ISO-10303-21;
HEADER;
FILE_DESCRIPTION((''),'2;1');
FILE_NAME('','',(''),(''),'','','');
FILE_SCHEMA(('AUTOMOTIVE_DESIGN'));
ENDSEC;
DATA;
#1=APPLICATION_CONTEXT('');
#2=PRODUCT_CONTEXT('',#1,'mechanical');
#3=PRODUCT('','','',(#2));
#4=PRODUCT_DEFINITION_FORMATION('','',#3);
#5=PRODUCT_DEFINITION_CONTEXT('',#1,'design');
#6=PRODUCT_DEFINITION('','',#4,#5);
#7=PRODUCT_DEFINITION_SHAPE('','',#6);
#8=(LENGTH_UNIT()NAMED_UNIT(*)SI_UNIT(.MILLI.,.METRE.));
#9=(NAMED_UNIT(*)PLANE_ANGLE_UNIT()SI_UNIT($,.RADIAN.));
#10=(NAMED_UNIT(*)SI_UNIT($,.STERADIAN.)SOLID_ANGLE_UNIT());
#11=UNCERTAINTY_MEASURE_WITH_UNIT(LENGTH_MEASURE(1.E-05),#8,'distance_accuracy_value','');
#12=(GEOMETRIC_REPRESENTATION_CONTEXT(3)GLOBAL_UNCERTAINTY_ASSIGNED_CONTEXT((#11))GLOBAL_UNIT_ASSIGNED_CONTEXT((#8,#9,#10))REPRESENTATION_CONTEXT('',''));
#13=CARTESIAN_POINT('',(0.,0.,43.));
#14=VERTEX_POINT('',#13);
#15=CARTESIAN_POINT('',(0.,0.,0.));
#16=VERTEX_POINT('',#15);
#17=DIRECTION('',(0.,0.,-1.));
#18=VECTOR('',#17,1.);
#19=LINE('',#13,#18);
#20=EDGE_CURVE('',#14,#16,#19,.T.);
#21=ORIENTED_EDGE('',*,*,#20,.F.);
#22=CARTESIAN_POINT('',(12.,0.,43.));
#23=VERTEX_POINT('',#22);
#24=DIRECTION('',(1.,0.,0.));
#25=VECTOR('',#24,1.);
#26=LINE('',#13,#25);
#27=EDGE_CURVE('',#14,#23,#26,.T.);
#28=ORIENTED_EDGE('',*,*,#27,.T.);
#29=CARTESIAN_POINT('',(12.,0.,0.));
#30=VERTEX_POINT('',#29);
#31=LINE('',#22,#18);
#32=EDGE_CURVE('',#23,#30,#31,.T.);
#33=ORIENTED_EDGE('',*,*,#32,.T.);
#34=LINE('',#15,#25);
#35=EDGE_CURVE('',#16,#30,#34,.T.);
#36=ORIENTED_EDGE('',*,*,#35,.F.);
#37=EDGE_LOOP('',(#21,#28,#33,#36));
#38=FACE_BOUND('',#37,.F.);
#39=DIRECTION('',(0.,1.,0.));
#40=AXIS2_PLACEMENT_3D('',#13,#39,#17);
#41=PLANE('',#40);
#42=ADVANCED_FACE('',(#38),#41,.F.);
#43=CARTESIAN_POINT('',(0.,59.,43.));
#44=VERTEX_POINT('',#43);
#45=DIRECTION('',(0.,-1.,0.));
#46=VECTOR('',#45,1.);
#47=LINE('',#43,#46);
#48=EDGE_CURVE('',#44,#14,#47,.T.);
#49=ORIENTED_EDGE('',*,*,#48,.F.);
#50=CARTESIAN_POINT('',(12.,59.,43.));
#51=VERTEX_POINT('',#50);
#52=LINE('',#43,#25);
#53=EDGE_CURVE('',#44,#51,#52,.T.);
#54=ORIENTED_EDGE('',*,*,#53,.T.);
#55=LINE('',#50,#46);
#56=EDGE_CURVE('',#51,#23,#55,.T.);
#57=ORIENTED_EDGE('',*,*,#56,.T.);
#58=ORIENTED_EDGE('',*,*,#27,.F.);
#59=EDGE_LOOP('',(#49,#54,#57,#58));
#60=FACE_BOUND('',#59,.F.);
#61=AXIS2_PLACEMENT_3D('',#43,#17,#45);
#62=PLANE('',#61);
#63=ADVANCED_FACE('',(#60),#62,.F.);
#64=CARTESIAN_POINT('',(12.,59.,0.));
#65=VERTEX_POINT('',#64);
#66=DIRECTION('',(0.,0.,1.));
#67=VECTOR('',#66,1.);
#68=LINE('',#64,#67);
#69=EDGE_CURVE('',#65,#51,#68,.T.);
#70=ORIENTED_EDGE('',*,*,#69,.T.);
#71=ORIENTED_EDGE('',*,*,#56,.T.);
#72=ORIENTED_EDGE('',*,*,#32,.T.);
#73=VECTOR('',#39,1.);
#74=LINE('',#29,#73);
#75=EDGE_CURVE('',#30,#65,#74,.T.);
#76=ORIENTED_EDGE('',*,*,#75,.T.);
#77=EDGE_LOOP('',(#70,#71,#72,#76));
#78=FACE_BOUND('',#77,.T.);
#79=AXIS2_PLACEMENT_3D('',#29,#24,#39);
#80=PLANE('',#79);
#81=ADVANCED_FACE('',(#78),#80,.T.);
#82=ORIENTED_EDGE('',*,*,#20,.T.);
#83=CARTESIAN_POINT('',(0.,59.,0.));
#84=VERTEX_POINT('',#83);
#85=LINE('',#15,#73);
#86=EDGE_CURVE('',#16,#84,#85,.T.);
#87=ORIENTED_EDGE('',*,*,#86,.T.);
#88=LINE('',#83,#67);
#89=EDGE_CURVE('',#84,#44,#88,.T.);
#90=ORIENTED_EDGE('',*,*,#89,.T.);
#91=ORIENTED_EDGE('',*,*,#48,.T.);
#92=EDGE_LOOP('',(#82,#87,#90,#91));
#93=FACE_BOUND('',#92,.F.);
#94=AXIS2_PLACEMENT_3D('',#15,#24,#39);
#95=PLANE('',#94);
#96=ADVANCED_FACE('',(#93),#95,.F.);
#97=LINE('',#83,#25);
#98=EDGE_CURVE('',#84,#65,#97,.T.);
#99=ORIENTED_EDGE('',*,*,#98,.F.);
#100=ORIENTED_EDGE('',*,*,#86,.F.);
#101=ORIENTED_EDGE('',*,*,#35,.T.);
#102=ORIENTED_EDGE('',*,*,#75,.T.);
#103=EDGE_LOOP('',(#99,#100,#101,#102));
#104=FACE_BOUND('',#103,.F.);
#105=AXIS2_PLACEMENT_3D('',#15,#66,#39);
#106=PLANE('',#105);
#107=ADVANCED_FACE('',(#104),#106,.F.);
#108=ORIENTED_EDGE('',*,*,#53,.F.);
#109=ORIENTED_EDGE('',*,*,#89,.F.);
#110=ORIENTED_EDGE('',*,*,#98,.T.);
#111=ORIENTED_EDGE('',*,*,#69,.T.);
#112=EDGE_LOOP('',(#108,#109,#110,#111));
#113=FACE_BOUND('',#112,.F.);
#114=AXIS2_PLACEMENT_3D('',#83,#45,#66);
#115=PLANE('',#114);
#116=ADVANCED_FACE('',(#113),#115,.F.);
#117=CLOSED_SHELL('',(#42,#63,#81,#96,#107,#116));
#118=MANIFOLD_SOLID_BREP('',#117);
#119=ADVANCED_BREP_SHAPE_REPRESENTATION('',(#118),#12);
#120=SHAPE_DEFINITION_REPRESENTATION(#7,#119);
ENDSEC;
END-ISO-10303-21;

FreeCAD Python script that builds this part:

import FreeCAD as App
import Part
import Sketcher
from FreeCAD import Vector


def add_polygon(sketch, points):
    """Adds a closed chain of lines whose ends are joined by coincident constraints."""
    first, n = sketch.GeometryCount, len(points)
    for a, b in zip(points, points[1:] + points[:1]):
        sketch.addGeometry(Part.LineSegment(App.Vector(*a, 0), App.Vector(*b, 0)), False)
    for i in range(n):
        sketch.addConstraint(Sketcher.Constraint("Coincident", first + i, 2, first + (i + 1) % n, 1))

doc = App.newDocument("Part")
body = doc.addObject("PartDesign::Body", "Body")

# Sketch on YZ plane
sketch1 = doc.addObject("Sketcher::SketchObject", "Sketch")
body.addObject(sketch1)
sketch1.AttachmentSupport = (doc.YZ_Plane, [""])
sketch1.MapMode = "FlatFace"
add_polygon(sketch1, [(0, 43), (0, 0), (59, 0), (59, 43)])  # lines 0-3
sketch1.addConstraint(Sketcher.Constraint("Vertical", 0))
sketch1.addConstraint(Sketcher.Constraint("Horizontal", 1))
sketch1.addConstraint(Sketcher.Constraint("Vertical", 2))
sketch1.addConstraint(Sketcher.Constraint("Horizontal", 3))
sketch1.addConstraint(Sketcher.Constraint("Coincident", 0, 2, -1, 1))
sketch1.addConstraint(Sketcher.Constraint("DistanceX", 1, 1, 1, 2, 59.0))
sketch1.addConstraint(Sketcher.Constraint("DistanceY", 0, 2, 0, 1, 43.0))
pad1 = doc.addObject("PartDesign::Pad", "Pad")
body.addObject(pad1)
pad1.Profile = sketch1
pad1.Length = 12

doc.recompute()
